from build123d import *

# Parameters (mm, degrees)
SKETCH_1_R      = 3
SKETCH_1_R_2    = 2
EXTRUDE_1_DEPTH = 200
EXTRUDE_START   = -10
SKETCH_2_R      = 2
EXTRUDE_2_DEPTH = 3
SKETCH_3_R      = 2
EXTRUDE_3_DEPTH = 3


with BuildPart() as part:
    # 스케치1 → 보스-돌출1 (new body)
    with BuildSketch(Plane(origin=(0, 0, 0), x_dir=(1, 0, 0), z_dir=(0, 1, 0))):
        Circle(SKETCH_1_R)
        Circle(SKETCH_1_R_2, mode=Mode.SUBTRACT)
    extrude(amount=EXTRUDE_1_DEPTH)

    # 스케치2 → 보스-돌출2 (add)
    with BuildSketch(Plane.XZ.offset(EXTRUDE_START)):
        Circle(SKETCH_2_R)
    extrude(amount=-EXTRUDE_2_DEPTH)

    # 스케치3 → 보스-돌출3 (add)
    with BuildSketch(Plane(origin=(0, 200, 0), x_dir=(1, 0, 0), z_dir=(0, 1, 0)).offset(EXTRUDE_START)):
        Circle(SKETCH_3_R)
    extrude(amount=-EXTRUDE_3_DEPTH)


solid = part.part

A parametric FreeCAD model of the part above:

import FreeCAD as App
import Part
import Sketcher
from FreeCAD import Vector

doc = App.newDocument("Part")
body = doc.addObject("PartDesign::Body", "Body")

sketch1 = doc.addObject("Sketcher::SketchObject", "Sketch")
body.addObject(sketch1)
sketch1.AttachmentSupport = (doc.XZ_Plane, [""])
sketch1.MapMode = "FlatFace"
sketch1.addGeometry(Part.Circle(Vector(0, 0, 0), Vector(0, 0, 1), 3), False)
sketch1.addGeometry(Part.Circle(Vector(0, 0, 0), Vector(0, 0, 1), 2), False)
sketch1.addConstraint(Sketcher.Constraint("Coincident", 0, 3, -1, 1))
sketch1.addConstraint(Sketcher.Constraint("Coincident", 1, 3, -1, 1))
sketch1.addConstraint(Sketcher.Constraint("Diameter", 0, 6.0))
sketch1.addConstraint(Sketcher.Constraint("Diameter", 1, 4.0))
pad1 = doc.addObject("PartDesign::Pad", "Pad")
body.addObject(pad1)
pad1.Profile = sketch1
pad1.Length = 200
pad1.Reversed = True

sketch2 = doc.addObject("Sketcher::SketchObject", "Sketch001")
body.addObject(sketch2)
sketch2.AttachmentSupport = (doc.XZ_Plane, [""])
sketch2.MapMode = "FlatFace"
sketch2.AttachmentOffset = App.Placement(Vector(0, 0, -10), App.Rotation())
sketch2.addGeometry(Part.Circle(Vector(0, 0, 0), Vector(0, 0, 1), 2), False)
sketch2.addConstraint(Sketcher.Constraint("Coincident", 0, 3, -1, 1))
sketch2.addConstraint(Sketcher.Constraint("Diameter", 0, 4.0))
pad2 = doc.addObject("PartDesign::Pad", "Pad001")
body.addObject(pad2)
pad2.Profile = sketch2
pad2.Length = 3
pad2.Reversed = True

sketch3 = doc.addObject("Sketcher::SketchObject", "Sketch002")
body.addObject(sketch3)
sketch3.AttachmentSupport = (doc.XZ_Plane, [""])
sketch3.MapMode = "FlatFace"
sketch3.AttachmentOffset = App.Placement(Vector(0, 0, -190), App.Rotation())
sketch3.addGeometry(Part.Circle(Vector(0, 0, 0), Vector(0, 0, 1), 2), False)
sketch3.addConstraint(Sketcher.Constraint("Coincident", 0, 3, -1, 1))
sketch3.addConstraint(Sketcher.Constraint("Diameter", 0, 4.0))
pad3 = doc.addObject("PartDesign::Pad", "Pad002")
body.addObject(pad3)
pad3.Profile = sketch3
pad3.Length = 3

doc.recompute()
